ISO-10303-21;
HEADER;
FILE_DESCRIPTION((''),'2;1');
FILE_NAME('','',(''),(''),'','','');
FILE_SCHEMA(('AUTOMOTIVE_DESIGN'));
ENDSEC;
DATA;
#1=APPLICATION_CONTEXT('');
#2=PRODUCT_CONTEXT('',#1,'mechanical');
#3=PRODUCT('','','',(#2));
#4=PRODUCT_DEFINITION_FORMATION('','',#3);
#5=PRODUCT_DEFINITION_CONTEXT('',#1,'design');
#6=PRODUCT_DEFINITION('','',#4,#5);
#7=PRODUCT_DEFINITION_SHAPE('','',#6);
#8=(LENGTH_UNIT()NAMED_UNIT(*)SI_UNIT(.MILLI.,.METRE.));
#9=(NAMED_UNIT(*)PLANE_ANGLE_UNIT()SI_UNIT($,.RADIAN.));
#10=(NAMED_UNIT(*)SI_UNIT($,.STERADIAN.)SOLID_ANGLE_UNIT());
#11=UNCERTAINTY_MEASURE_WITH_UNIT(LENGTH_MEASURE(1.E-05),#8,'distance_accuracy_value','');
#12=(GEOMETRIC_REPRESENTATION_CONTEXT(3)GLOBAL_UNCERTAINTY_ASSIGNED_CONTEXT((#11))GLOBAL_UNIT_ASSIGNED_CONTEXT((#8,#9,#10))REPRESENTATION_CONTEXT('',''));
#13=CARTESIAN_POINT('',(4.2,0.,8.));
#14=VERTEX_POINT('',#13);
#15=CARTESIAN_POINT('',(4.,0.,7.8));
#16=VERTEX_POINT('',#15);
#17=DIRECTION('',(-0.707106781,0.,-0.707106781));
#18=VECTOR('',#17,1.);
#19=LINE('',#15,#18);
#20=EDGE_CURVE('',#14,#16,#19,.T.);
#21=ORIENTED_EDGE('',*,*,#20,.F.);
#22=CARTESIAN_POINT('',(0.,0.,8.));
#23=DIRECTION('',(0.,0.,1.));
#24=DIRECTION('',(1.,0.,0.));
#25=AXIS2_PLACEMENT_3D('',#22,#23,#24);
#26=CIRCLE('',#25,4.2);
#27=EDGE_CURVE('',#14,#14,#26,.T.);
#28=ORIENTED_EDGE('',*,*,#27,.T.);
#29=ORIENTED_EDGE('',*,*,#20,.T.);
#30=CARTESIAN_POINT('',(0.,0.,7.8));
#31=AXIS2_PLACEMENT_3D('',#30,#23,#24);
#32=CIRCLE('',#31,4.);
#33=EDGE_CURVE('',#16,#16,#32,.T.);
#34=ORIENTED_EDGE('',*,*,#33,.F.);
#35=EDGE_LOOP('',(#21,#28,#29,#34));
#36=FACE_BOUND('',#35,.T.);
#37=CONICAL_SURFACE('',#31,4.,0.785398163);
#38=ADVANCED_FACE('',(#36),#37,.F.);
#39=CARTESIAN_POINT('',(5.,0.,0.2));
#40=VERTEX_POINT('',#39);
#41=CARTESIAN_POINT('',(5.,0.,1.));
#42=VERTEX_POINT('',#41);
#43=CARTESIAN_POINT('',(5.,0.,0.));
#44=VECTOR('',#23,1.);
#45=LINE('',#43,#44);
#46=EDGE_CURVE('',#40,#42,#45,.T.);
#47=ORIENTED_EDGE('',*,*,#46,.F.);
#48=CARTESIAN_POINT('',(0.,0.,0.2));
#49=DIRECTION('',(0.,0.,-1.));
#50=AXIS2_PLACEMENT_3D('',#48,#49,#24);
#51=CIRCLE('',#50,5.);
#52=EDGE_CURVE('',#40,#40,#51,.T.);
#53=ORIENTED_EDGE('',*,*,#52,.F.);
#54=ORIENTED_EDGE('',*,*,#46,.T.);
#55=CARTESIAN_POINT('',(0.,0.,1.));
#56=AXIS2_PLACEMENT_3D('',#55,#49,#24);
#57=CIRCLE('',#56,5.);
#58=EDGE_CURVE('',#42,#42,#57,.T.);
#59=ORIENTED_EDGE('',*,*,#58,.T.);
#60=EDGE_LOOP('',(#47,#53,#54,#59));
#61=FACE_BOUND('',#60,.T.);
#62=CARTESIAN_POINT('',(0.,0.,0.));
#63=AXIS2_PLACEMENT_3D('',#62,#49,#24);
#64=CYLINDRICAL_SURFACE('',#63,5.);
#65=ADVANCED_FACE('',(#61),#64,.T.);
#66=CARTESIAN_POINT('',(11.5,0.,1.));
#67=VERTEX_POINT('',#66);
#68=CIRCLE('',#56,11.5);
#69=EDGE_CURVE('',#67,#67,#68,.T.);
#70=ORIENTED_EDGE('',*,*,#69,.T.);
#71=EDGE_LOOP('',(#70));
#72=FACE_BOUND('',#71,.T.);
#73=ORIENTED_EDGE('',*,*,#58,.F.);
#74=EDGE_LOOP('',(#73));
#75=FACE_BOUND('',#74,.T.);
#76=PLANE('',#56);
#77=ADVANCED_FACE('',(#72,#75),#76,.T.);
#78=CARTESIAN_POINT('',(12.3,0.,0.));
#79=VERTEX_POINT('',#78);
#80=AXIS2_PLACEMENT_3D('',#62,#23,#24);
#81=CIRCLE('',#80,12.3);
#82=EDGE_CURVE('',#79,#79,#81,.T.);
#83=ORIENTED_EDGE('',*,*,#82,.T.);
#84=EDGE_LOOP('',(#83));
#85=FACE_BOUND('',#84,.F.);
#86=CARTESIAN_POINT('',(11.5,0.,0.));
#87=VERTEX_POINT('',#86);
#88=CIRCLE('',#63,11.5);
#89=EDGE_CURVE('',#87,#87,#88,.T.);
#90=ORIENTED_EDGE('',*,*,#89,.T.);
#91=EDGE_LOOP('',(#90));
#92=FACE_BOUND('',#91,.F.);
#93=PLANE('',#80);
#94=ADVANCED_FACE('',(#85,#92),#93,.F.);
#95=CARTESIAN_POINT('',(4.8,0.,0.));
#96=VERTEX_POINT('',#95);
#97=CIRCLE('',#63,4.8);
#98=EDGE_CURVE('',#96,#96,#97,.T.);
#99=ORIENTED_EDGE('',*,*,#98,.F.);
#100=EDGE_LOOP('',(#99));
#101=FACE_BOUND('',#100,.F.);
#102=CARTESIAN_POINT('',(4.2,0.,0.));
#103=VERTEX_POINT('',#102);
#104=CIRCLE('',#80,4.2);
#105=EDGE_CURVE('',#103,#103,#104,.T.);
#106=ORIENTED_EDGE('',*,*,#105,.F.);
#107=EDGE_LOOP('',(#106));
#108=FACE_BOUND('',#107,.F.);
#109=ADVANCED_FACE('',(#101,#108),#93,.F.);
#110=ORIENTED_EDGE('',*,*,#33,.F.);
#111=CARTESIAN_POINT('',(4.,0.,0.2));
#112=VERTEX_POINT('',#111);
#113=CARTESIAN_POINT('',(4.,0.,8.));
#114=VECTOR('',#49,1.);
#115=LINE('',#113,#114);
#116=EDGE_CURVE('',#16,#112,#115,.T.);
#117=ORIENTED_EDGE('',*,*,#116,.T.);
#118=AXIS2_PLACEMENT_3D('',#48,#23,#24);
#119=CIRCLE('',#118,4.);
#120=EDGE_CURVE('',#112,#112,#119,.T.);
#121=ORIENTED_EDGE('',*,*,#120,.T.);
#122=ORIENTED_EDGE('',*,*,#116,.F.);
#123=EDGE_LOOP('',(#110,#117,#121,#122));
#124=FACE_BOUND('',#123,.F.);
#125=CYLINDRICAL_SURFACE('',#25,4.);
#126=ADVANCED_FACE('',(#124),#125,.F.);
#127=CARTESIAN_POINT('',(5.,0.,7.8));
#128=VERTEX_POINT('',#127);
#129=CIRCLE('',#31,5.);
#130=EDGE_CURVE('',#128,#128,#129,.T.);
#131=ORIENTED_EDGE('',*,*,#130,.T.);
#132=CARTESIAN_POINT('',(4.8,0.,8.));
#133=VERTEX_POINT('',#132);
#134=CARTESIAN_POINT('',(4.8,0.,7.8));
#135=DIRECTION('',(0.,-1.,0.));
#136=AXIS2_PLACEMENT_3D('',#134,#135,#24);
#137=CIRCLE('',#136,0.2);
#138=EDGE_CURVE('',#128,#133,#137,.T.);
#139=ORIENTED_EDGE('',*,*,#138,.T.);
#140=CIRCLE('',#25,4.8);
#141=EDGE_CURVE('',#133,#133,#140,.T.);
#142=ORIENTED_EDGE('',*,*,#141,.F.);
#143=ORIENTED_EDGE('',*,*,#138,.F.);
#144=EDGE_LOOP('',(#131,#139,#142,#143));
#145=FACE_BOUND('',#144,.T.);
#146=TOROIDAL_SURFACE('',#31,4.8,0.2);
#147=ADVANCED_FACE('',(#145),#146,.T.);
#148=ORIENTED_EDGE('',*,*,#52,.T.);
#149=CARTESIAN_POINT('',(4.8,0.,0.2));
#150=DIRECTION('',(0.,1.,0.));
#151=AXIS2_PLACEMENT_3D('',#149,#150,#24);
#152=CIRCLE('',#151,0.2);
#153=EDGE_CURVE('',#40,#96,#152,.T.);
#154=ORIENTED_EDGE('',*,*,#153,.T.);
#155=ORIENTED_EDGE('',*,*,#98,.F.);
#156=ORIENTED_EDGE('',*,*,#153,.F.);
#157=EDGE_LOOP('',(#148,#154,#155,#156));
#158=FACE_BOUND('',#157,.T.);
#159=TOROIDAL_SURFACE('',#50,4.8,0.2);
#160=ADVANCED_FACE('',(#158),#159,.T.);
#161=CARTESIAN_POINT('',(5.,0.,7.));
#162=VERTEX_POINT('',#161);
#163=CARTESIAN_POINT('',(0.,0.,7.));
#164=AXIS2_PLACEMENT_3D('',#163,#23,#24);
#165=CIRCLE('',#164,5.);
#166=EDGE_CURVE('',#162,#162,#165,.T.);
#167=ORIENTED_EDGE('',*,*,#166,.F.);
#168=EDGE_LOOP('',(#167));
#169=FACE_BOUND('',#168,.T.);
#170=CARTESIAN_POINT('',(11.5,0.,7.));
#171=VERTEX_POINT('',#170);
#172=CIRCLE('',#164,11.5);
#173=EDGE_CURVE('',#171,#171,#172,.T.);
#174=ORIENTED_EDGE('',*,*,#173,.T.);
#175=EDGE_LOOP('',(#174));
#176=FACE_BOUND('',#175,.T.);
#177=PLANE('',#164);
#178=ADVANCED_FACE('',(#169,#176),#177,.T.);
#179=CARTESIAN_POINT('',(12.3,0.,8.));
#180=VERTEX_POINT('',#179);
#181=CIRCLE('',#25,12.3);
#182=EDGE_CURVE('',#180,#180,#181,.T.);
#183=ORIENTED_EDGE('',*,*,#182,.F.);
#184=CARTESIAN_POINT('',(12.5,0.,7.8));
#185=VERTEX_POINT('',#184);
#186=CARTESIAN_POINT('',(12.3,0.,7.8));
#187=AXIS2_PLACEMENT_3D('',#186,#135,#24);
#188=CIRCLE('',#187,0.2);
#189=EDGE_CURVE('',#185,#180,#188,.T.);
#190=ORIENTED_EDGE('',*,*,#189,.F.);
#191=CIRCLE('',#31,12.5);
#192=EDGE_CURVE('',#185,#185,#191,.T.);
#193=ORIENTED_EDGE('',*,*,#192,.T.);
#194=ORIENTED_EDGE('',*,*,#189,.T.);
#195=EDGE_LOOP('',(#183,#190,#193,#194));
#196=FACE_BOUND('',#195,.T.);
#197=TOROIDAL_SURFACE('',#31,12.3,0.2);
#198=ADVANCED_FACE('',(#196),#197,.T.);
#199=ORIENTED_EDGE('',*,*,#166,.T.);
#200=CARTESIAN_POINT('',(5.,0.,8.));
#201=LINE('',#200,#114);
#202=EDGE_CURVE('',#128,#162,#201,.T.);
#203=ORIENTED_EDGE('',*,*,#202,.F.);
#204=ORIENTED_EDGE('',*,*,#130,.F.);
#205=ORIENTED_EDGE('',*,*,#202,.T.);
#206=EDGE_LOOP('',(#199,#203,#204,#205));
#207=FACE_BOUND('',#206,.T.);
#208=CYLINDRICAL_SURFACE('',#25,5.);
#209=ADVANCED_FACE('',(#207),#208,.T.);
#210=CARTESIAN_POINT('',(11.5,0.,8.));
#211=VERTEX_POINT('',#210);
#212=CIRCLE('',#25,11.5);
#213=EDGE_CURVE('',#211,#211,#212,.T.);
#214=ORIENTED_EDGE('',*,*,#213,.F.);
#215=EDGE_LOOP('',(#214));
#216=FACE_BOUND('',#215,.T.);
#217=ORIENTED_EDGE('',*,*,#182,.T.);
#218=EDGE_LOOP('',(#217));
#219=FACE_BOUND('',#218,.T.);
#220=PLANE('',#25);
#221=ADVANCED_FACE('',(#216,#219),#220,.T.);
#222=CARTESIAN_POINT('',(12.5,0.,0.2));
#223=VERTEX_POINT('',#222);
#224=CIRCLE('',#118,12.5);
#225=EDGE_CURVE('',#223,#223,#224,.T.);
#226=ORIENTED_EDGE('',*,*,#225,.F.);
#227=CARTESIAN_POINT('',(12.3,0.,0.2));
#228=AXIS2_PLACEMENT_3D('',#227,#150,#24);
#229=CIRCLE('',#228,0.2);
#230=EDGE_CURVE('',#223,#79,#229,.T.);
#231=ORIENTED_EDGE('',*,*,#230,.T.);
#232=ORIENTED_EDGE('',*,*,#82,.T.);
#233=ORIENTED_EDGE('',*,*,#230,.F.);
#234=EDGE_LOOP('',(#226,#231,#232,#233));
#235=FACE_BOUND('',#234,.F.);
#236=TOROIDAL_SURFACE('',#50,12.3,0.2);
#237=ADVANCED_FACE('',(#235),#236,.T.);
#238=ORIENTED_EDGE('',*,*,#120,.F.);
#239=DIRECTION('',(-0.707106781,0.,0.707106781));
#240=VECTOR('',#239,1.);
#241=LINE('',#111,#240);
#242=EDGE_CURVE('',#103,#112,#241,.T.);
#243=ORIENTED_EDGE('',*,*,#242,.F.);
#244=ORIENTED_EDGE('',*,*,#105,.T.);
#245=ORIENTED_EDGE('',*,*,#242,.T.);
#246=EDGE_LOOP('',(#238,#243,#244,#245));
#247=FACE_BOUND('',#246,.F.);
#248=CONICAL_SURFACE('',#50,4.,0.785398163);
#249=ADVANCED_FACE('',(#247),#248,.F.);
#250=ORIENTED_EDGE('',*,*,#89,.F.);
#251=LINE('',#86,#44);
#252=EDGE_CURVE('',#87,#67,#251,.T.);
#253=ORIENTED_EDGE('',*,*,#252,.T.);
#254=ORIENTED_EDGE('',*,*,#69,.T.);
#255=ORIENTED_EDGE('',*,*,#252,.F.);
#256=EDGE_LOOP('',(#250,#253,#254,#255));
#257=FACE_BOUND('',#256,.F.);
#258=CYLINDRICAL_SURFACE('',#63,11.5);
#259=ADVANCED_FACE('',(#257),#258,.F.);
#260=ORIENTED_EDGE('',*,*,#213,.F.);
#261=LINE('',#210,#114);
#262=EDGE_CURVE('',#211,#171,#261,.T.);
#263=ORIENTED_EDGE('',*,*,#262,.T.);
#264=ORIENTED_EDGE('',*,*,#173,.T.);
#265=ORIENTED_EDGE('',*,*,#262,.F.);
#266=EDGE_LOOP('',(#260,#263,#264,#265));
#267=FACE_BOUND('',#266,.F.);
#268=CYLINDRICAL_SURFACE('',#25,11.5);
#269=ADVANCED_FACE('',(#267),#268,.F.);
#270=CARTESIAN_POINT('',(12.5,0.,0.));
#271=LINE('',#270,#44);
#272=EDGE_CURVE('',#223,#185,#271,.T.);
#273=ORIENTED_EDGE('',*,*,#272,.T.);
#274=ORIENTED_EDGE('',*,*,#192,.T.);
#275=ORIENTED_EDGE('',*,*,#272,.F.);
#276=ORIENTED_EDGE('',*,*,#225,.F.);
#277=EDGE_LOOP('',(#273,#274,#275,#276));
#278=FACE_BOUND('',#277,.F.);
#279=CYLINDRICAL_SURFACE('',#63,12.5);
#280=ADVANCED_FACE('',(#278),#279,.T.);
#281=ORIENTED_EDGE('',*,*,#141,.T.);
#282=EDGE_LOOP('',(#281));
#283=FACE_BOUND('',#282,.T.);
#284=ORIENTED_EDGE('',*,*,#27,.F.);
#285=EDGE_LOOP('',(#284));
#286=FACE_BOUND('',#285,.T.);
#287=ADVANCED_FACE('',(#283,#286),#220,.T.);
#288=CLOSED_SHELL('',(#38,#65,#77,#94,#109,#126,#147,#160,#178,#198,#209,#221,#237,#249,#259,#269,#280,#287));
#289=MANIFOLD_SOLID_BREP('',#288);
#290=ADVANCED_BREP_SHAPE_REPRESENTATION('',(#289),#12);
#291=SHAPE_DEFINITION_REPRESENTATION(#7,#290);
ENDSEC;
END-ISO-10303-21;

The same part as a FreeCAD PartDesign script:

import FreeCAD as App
import Part
import Sketcher


def edges_at(feature, points):
    """Names of the edges that pass closest to the given points."""
    edges = feature.Shape.Edges
    near = lambda p: min(range(len(edges)), key=lambda i: edges[i].distToShape(Part.Vertex(*p))[0])
    return sorted({f"Edge{near(p) + 1}" for p in points})

doc = App.newDocument("Part")
params = doc.addObject("Spreadsheet::Sheet", "Params")
for row, (alias, value) in enumerate([
    ("sketch1_diameter", "25 mm"),
    ("pad1_length", "8 mm"),
    ("sketch2_diameter", "8 mm"),
    ("sketch3_diameter", "23 mm"),
    ("sketch3_diameter2", "10 mm"),
    ("pocket2_length", "1 mm"),
    ("sketch4_diameter", "23 mm"),
    ("sketch4_diameter2", "10 mm"),
    ("pocket3_length", "1 mm"),
    ("fillet_radius", "0.2 mm"),
    ("chamfer_size", "0.2 mm"),
], start=1):
    params.set(f"A{row}", alias)
    params.set(f"B{row}", "=" + value)
    params.setAlias(f"B{row}", alias)

body = doc.addObject("PartDesign::Body", "Body")

# Sketch on XY plane
sketch1 = body.newObject("Sketcher::SketchObject", "Sketch")
sketch1.AttachmentSupport = (doc.getObject("XY_Plane"), [""])
sketch1.MapMode = "FlatFace"
sketch1.addGeometry(Part.Circle(App.Vector(0, 0, 0), App.Vector(0, 0, 1), 12.5), False)
sketch1.addConstraint([
    Sketcher.Constraint("Coincident", 0, 3, -1, 1),
    Sketcher.Constraint("Diameter", 0, 25.0),
])
sketch1.setExpression("Constraints[1]", "Params.sketch1_diameter")
pad1 = body.newObject("PartDesign::Pad", "Pad")
pad1.Profile = sketch1
pad1.setExpression("Length", "Params.pad1_length")

# Sketch on XY plane
sketch2 = body.newObject("Sketcher::SketchObject", "Sketch001")
sketch2.AttachmentSupport = (doc.getObject("XY_Plane"), [""])
sketch2.MapMode = "FlatFace"
sketch2.AttachmentOffset = App.Placement(App.Vector(0, 0, 8), App.Rotation())
sketch2.addGeometry(Part.Circle(App.Vector(0, 0, 0), App.Vector(0, 0, 1), 4), False)
sketch2.addConstraint([
    Sketcher.Constraint("Coincident", 0, 3, -1, 1),
    Sketcher.Constraint("Diameter", 0, 8.0),
])
sketch2.setExpression("Constraints[1]", "Params.sketch2_diameter")
pocket1 = body.newObject("PartDesign::Pocket", "Pocket")
pocket1.Profile = sketch2
pocket1.Type = "ThroughAll"

# Sketch on XY plane
sketch3 = body.newObject("Sketcher::SketchObject", "Sketch002")
sketch3.AttachmentSupport = (doc.getObject("XY_Plane"), [""])
sketch3.MapMode = "FlatFace"
sketch3.AttachmentOffset = App.Placement(App.Vector(0, 0, 8), App.Rotation())
sketch3.addGeometry([
    Part.Circle(App.Vector(0, 0, 0), App.Vector(0, 0, 1), 11.5),
    Part.Circle(App.Vector(0, 0, 0), App.Vector(0, 0, 1), 5),
], False)
sketch3.addConstraint([
    Sketcher.Constraint("Coincident", 0, 3, -1, 1),
    Sketcher.Constraint("Coincident", 1, 3, -1, 1),
    Sketcher.Constraint("Diameter", 0, 23.0),
    Sketcher.Constraint("Diameter", 1, 10.0),
])
sketch3.setExpression("Constraints[2]", "Params.sketch3_diameter")
sketch3.setExpression("Constraints[3]", "Params.sketch3_diameter2")
pocket2 = body.newObject("PartDesign::Pocket", "Pocket001")
pocket2.Profile = sketch3
pocket2.setExpression("Length", "Params.pocket2_length")

# Sketch on XY plane
sketch4 = body.newObject("Sketcher::SketchObject", "Sketch003")
sketch4.AttachmentSupport = (doc.getObject("XY_Plane"), [""])
sketch4.MapMode = "FlatFace"
sketch4.addGeometry([
    Part.Circle(App.Vector(0, 0, 0), App.Vector(0, 0, 1), 11.5),
    Part.Circle(App.Vector(0, 0, 0), App.Vector(0, 0, 1), 5),
], False)
sketch4.addConstraint([
    Sketcher.Constraint("Coincident", 0, 3, -1, 1),
    Sketcher.Constraint("Coincident", 1, 3, -1, 1),
    Sketcher.Constraint("Diameter", 0, 23.0),
    Sketcher.Constraint("Diameter", 1, 10.0),
])
sketch4.setExpression("Constraints[2]", "Params.sketch4_diameter")
sketch4.setExpression("Constraints[3]", "Params.sketch4_diameter2")
pocket3 = body.newObject("PartDesign::Pocket", "Pocket002")
pocket3.Profile = sketch4
pocket3.setExpression("Length", "Params.pocket3_length")
pocket3.Reversed = True
doc.recompute()

fillet = body.newObject("PartDesign::Fillet", "Fillet")
fillet.Base = (pocket3, edges_at(pocket3, [
    (-12.5, 0, 8),
    (-12.5, 0, 0),
    (-5, 0, 8),
    (-5, 0, 0),
]))
fillet.setExpression("Radius", "Params.fillet_radius")
doc.recompute()

chamfer = body.newObject("PartDesign::Chamfer", "Chamfer")
chamfer.Base = (fillet, edges_at(fillet, [(-4, 0, 8), (-4, 0, 0)]))
chamfer.setExpression("Size", "Params.chamfer_size")

doc.recompute()
